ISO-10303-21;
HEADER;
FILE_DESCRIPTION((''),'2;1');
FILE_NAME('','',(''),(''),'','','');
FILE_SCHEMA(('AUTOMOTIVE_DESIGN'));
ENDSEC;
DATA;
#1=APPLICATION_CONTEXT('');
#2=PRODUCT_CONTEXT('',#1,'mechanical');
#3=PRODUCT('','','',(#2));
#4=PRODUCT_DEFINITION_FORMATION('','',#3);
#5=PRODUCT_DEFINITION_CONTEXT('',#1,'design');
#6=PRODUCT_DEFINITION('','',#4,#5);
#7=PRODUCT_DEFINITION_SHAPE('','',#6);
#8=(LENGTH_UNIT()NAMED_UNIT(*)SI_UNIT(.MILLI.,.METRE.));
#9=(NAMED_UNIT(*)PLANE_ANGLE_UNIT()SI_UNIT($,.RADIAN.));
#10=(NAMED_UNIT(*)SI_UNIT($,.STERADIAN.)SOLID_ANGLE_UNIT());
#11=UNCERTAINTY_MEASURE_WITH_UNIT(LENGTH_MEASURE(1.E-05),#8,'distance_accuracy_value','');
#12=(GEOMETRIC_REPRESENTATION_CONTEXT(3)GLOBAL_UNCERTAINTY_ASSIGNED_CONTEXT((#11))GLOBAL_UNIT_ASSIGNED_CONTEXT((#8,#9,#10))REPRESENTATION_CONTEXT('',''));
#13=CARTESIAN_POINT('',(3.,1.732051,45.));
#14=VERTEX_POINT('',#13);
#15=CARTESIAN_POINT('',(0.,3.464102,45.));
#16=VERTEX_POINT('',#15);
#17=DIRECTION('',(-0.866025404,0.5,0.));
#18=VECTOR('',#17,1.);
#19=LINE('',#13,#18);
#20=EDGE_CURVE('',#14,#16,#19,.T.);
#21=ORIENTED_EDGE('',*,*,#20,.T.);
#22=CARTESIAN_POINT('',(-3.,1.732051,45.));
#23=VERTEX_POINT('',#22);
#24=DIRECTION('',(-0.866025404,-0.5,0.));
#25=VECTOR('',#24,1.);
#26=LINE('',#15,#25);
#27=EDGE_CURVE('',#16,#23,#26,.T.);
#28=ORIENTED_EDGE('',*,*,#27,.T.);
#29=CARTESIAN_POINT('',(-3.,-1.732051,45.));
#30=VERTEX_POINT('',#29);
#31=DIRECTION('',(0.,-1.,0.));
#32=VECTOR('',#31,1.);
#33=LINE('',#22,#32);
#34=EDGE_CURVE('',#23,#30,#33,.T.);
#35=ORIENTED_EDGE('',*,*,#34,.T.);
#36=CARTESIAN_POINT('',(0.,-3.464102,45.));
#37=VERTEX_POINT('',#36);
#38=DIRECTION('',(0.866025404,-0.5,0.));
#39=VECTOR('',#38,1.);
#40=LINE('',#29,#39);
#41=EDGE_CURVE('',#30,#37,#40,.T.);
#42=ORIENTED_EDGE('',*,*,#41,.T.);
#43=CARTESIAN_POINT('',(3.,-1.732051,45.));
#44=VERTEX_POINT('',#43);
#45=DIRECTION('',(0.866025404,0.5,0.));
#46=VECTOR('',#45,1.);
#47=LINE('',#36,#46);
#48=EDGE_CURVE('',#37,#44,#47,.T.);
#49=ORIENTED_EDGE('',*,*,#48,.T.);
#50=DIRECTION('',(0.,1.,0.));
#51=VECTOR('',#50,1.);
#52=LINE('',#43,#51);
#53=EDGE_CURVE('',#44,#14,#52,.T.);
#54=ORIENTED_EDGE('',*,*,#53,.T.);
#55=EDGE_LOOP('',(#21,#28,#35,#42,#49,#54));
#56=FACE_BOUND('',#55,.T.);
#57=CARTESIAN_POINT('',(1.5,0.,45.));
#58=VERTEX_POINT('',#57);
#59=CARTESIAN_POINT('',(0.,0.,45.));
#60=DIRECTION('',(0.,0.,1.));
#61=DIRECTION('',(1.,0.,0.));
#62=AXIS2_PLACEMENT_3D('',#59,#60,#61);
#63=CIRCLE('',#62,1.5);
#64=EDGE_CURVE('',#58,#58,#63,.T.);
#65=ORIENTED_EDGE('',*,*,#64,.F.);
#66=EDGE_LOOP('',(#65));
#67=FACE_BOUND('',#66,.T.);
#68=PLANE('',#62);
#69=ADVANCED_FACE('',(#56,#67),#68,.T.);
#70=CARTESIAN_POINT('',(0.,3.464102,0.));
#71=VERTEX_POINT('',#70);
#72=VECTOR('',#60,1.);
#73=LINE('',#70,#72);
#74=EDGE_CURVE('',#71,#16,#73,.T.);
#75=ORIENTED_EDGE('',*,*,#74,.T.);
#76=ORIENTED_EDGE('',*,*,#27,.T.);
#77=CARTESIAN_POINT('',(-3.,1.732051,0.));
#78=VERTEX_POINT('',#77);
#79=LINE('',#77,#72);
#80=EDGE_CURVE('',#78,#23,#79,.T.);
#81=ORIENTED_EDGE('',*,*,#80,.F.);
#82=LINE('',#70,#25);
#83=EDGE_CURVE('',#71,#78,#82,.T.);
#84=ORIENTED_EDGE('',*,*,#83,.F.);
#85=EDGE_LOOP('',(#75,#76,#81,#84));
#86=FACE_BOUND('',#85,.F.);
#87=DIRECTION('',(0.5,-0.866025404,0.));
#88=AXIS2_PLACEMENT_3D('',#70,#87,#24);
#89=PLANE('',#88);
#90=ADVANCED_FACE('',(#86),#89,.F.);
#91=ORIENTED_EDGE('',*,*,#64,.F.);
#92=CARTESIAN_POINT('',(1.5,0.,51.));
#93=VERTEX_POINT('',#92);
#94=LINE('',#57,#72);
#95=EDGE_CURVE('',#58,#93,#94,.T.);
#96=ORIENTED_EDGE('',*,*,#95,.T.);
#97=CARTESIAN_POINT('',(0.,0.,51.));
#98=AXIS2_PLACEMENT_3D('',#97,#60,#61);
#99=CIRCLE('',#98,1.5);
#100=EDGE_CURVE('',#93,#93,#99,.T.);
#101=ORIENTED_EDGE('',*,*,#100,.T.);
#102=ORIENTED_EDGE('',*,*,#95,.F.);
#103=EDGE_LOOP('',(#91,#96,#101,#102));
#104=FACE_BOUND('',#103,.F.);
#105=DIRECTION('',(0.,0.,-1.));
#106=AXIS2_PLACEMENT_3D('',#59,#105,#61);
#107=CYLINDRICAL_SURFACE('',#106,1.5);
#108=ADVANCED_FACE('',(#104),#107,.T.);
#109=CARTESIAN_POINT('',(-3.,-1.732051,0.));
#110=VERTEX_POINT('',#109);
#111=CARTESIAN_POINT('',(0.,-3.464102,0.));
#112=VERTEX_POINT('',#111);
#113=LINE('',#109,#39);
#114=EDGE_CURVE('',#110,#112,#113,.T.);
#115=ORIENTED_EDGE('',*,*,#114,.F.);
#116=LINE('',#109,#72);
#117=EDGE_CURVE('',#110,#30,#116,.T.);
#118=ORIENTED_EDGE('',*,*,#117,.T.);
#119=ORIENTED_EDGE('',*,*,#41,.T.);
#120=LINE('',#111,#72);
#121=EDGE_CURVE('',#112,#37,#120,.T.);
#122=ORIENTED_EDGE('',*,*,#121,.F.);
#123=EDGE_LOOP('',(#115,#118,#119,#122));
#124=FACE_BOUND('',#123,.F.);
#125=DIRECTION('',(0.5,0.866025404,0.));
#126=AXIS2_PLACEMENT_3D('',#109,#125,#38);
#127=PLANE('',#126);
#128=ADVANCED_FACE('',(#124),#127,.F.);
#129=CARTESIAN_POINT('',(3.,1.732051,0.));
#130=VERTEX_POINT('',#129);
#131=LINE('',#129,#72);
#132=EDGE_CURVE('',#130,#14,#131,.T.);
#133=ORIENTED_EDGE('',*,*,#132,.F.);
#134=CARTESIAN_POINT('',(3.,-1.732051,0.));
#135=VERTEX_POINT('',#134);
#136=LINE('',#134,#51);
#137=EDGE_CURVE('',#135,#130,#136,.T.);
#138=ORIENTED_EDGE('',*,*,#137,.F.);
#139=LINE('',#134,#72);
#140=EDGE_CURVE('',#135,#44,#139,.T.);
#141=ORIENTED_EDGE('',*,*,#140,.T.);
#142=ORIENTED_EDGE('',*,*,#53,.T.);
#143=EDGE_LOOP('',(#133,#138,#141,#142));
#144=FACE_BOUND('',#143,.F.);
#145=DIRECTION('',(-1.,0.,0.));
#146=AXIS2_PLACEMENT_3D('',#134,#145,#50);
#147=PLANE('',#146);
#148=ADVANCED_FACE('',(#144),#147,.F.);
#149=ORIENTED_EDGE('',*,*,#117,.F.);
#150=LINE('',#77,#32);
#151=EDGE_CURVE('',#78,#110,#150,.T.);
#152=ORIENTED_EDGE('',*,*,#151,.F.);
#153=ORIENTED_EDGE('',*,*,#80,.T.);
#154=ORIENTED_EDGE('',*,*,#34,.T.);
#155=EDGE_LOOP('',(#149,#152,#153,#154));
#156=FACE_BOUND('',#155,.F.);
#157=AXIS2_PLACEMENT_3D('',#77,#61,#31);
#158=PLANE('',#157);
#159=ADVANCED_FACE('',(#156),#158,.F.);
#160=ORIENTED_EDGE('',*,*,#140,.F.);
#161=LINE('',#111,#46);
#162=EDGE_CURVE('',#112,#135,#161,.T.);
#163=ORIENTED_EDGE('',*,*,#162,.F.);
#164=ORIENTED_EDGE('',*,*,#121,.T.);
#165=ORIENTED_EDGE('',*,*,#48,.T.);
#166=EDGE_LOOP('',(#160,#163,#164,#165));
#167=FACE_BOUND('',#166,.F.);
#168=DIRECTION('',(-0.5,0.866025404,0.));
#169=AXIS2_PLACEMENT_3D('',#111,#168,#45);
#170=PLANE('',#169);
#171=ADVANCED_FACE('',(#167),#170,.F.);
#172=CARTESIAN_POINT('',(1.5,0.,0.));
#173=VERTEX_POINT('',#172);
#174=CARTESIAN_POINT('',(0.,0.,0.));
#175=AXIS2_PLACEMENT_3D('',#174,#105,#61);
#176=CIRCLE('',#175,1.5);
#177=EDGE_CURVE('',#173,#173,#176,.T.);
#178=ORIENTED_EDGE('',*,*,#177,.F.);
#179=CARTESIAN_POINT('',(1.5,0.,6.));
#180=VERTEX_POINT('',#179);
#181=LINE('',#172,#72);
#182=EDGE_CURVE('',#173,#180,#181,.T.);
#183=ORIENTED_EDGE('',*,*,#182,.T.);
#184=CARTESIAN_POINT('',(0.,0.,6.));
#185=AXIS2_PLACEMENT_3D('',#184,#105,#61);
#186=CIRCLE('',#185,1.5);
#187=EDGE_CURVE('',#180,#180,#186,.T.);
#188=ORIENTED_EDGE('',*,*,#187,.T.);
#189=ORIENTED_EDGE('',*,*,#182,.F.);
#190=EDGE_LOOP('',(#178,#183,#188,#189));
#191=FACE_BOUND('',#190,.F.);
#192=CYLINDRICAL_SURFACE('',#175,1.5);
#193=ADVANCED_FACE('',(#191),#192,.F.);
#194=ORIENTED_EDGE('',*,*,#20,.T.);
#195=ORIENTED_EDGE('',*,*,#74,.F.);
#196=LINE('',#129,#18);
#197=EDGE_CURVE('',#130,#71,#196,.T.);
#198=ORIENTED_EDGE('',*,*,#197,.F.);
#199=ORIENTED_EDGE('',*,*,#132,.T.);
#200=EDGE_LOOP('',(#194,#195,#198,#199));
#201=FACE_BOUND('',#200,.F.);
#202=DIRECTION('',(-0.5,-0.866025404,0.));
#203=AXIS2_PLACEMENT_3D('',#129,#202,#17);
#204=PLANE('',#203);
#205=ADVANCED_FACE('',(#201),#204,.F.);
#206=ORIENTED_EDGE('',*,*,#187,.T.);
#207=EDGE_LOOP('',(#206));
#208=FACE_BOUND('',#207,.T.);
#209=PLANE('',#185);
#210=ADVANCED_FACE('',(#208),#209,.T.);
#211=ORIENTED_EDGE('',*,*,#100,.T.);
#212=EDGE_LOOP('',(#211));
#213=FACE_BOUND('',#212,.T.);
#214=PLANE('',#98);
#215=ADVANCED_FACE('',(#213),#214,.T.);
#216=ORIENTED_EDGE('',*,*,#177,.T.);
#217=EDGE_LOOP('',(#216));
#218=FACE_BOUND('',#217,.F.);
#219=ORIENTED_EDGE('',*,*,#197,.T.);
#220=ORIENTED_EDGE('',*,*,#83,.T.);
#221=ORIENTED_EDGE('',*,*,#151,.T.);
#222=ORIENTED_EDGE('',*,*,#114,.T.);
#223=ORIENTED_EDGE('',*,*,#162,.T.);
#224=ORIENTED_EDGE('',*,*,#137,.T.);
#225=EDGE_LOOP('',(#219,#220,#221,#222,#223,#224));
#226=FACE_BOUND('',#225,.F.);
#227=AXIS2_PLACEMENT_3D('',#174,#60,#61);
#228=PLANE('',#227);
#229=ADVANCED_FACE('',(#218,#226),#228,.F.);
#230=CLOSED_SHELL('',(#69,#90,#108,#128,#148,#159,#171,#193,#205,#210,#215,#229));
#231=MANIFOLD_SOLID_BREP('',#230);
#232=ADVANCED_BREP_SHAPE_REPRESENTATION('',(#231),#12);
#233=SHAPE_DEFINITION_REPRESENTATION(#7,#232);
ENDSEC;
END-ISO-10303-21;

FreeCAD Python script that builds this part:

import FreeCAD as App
import Part
import Sketcher

V = App.Vector
Q = App.Units.Quantity


def add_polygon(sketch, points):
    """Adds a closed chain of lines whose ends are joined by coincident constraints."""
    first, n = sketch.GeometryCount, len(points)
    for a, b in zip(points, points[1:] + points[:1]):
        sketch.addGeometry(Part.LineSegment(App.Vector(*a, 0), App.Vector(*b, 0)), False)
    for i in range(n):
        sketch.addConstraint(Sketcher.Constraint("Coincident", first + i, 2, first + (i + 1) % n, 1))

doc = App.newDocument("Part")
body = doc.addObject("PartDesign::Body", "Body")

sketch1 = body.newObject("Sketcher::SketchObject", "Sketch")
sketch1.AttachmentSupport = (doc.getObject("XY_Plane"), [""])
sketch1.MapMode = "FlatFace"
add_polygon(sketch1, [(3, -1.7), (3, 1.7), (0, 3.5), (-3, 1.7), (-3, -1.7), (0, -3.5)])
sketch1.addConstraint([
    Sketcher.Constraint("Vertical", 0),
    Sketcher.Constraint("Vertical", 3),
    Sketcher.Constraint("Symmetric", 0, 2, 3, 2, -1, 1),
    Sketcher.Constraint("Symmetric", 1, 2, 4, 2, -1, 1),
    Sketcher.Constraint("PointOnObject", 1, 2, -2),
    Sketcher.Constraint("Parallel", 2, 5),
    Sketcher.Constraint("Horizontal", 0, 2, 2, 2),
    Sketcher.Constraint("Angle", 1, Q("150 deg")),
    Sketcher.Constraint("DistanceX", -1, 1, 0, 2, 3.0),
    Sketcher.Constraint("DistanceY", 0, 1, 0, 2, 3.464102),
])
pad1 = body.newObject("PartDesign::Pad", "Pad")
pad1.Profile = sketch1
pad1.Length = 45

sketch2 = body.newObject("Sketcher::SketchObject", "Sketch001")
sketch2.AttachmentSupport = (doc.getObject("XY_Plane"), [""])
sketch2.MapMode = "FlatFace"
sketch2.AttachmentOffset = App.Placement(V(0, 0, 45), App.Rotation())
sketch2.addGeometry(Part.Circle(V(0, 0, 0), V(0, 0, 1), 1.5), False)
sketch2.addConstraint([
    Sketcher.Constraint("Coincident", 0, 3, -1, 1),
    Sketcher.Constraint("Diameter", 0, 3.0),
])
pad2 = body.newObject("PartDesign::Pad", "Pad001")
pad2.Profile = sketch2
pad2.Length = 6

sketch3 = body.newObject("Sketcher::SketchObject", "Sketch002")
sketch3.AttachmentSupport = (doc.getObject("XY_Plane"), [""])
sketch3.MapMode = "FlatFace"
sketch3.addGeometry(Part.Circle(V(0, 0, 0), V(0, 0, 1), 1.5), False)
sketch3.addConstraint([
    Sketcher.Constraint("Coincident", 0, 3, -1, 1),
    Sketcher.Constraint("Diameter", 0, 3.0),
])
pocket1 = body.newObject("PartDesign::Pocket", "Pocket")
pocket1.Profile = sketch3
pocket1.Length = 6
pocket1.Reversed = True

doc.recompute()
